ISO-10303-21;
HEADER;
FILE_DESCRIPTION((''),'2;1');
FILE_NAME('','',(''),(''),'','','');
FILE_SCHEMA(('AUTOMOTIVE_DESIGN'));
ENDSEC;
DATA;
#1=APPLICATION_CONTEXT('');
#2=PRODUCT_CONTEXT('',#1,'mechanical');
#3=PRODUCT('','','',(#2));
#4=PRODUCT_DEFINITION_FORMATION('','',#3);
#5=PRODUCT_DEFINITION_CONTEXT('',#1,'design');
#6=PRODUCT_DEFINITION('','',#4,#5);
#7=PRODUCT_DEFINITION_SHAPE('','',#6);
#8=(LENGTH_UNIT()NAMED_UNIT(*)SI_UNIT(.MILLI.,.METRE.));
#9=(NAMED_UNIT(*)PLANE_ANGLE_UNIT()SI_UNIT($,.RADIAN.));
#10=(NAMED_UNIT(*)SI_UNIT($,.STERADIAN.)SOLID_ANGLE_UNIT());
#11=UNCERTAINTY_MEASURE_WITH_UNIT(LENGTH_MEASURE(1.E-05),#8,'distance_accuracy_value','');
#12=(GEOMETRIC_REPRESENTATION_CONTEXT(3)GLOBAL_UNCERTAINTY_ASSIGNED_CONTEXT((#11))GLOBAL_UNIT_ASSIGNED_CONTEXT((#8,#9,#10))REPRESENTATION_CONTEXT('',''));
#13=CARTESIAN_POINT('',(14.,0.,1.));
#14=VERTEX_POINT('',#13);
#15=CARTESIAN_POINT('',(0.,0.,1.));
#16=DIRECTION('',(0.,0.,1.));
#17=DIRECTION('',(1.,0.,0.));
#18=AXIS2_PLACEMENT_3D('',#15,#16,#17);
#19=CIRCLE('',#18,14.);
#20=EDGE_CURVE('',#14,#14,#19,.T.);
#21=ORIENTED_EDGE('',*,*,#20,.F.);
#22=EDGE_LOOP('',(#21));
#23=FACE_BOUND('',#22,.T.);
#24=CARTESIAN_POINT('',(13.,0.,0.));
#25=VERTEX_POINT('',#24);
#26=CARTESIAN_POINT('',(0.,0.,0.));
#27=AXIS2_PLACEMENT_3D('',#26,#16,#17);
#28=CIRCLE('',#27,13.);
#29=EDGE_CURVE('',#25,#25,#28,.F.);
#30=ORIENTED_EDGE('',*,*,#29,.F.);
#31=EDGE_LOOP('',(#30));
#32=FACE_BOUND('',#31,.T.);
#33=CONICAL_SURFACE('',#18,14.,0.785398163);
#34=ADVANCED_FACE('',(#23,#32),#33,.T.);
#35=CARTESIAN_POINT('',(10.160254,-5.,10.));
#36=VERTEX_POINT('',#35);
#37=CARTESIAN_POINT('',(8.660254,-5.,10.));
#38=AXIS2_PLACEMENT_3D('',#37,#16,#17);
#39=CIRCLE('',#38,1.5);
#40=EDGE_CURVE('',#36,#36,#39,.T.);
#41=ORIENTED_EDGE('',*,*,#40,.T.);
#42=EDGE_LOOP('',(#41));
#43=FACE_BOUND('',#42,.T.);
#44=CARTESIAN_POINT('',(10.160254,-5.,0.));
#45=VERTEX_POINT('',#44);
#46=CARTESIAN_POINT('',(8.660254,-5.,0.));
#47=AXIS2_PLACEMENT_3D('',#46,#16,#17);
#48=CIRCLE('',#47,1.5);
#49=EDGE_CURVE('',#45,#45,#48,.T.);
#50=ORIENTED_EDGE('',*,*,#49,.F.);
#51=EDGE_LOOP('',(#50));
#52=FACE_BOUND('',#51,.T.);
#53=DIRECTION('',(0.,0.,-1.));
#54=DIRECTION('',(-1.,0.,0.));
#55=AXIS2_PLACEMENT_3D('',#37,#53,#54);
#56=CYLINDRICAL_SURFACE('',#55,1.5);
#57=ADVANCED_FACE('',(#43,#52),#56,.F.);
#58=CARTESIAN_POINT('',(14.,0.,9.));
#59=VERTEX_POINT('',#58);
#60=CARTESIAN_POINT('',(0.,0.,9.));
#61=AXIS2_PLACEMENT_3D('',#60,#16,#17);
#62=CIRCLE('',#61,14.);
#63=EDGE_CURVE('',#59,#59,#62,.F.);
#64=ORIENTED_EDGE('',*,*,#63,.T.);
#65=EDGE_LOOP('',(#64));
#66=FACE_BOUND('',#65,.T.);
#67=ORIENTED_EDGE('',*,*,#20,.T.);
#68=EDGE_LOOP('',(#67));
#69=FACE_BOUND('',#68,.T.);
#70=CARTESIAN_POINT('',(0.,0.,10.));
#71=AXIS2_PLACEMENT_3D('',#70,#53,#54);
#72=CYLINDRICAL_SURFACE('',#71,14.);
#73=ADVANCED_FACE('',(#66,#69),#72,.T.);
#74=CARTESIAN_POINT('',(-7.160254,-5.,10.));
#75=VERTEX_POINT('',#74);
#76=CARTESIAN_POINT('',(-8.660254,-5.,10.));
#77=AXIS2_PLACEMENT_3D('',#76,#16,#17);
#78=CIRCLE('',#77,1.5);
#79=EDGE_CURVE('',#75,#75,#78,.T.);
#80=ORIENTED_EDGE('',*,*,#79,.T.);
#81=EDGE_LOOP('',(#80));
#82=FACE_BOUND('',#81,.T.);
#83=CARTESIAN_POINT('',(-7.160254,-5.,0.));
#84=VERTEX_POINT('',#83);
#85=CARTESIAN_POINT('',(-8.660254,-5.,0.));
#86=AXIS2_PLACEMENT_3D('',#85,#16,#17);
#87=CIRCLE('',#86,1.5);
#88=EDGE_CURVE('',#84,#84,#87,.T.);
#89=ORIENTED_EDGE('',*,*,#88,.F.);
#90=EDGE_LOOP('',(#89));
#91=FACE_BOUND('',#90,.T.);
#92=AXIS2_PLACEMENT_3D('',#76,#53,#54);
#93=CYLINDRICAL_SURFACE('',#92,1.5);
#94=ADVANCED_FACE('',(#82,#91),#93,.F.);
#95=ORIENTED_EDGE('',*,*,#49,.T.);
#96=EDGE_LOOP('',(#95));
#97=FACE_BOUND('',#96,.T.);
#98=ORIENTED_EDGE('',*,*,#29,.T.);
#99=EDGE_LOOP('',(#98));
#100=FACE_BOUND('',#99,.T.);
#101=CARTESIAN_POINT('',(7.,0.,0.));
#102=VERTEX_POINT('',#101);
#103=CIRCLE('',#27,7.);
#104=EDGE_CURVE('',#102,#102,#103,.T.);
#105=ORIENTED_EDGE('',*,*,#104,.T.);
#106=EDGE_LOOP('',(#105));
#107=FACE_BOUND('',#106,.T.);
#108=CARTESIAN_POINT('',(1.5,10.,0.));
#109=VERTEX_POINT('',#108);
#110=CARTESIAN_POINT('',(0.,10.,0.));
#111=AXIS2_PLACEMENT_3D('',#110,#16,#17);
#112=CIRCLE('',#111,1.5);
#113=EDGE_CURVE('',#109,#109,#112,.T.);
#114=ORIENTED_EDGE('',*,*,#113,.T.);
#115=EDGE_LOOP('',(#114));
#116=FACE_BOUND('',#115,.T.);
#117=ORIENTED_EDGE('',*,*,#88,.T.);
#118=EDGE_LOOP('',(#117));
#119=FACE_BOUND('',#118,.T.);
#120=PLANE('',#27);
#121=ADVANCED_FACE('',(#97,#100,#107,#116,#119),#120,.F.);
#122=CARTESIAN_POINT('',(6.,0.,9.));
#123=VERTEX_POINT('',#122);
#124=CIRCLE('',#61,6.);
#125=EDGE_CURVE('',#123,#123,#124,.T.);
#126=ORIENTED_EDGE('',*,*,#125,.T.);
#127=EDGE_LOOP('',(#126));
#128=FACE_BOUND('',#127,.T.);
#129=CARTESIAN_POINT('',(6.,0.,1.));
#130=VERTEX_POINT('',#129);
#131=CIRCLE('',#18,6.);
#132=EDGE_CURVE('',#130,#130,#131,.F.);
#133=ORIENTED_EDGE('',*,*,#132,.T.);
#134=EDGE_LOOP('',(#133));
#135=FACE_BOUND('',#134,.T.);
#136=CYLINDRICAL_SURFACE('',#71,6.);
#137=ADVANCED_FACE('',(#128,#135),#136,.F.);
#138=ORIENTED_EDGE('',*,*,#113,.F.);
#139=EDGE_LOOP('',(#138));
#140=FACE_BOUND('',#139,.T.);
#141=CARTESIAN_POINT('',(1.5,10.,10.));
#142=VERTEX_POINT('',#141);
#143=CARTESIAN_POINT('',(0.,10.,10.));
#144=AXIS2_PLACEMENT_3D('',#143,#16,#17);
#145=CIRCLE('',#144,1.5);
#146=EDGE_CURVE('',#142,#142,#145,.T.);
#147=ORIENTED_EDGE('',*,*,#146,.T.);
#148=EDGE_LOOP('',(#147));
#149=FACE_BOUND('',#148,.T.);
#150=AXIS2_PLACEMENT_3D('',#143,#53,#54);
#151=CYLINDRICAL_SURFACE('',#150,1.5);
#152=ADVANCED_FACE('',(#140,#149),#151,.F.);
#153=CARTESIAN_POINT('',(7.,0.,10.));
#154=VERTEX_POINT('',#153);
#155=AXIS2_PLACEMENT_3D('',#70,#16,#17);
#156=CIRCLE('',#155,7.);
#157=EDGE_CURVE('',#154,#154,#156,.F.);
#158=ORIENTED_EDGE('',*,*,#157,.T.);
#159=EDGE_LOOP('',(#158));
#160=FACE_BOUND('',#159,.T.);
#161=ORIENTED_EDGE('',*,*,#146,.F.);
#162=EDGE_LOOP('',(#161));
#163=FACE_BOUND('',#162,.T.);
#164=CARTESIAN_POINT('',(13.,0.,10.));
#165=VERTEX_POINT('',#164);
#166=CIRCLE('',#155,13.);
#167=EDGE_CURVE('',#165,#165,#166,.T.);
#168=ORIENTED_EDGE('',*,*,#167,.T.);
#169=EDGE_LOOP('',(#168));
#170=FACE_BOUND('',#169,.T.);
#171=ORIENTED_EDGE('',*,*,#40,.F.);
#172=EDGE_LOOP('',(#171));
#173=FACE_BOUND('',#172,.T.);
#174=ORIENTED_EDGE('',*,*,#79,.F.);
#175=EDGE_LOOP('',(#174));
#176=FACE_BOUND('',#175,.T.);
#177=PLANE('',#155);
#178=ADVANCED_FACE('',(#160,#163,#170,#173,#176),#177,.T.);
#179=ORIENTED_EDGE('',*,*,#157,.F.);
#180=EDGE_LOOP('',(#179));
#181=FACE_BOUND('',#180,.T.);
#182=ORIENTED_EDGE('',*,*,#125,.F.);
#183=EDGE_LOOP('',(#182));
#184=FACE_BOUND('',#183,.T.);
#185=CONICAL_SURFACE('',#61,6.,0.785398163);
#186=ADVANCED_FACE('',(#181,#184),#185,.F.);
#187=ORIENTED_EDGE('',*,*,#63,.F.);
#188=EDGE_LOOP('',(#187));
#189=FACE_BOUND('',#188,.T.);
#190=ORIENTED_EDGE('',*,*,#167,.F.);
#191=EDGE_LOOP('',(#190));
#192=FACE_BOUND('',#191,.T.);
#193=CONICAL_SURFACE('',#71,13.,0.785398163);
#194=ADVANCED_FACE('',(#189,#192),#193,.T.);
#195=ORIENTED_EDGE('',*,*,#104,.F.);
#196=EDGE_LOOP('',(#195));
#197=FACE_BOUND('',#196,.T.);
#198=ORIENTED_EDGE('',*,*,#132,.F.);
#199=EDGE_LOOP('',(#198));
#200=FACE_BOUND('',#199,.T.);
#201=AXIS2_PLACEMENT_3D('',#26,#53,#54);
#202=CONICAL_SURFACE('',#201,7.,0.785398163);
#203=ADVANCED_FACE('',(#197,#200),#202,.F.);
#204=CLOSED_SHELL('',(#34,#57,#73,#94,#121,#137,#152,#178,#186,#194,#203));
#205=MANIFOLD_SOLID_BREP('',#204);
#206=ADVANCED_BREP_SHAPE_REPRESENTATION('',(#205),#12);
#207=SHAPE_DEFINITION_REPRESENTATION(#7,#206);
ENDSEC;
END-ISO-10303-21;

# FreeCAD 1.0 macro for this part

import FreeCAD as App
import Part
import Sketcher

V = App.Vector


def edges_at(feature, points):
    """Names of the edges that pass closest to the given points."""
    edges = feature.Shape.Edges
    near = lambda p: min(range(len(edges)), key=lambda i: edges[i].distToShape(Part.Vertex(*p))[0])
    return sorted({f"Edge{near(p) + 1}" for p in points})

doc = App.newDocument("Part")
params = doc.addObject("Spreadsheet::Sheet", "Params")
for row, (alias, value) in enumerate([
    ("sketch1_diameter", "28 mm"),
    ("sketch1_diameter2", "3 mm"),
    ("sketch1_diameter3", "12 mm"),
    ("pad1_length", "10 mm"),
    ("chamfer_size", "1 mm"),
], start=1):
    params.set(f"A{row}", alias)
    params.set(f"B{row}", "=" + value)
    params.setAlias(f"B{row}", alias)

body = doc.addObject("PartDesign::Body", "Body")

sketch1 = body.newObject("Sketcher::SketchObject", "Sketch")
sketch1.AttachmentSupport = (doc.getObject("XY_Plane"), [""])
sketch1.MapMode = "FlatFace"
sketch1.addGeometry([
    Part.Circle(V(0, 0, 0), V(0, 0, 1), 14),
    Part.Circle(V(-8.7, -5, 0), V(0, 0, 1), 1.5),
    Part.Circle(V(8.7, -5, 0), V(0, 0, 1), 1.5),
    Part.Circle(V(0, 0, 0), V(0, 0, 1), 6),
    Part.Circle(V(0, 10, 0), V(0, 0, 1), 1.5),
], False)
sketch1.addConstraint([
    Sketcher.Constraint("Coincident", 0, 3, -1, 1),
    Sketcher.Constraint("Coincident", 3, 3, -1, 1),
    Sketcher.Constraint("Equal", 1, 2),
    Sketcher.Constraint("Equal", 2, 4),
    Sketcher.Constraint("Symmetric", 1, 3, 2, 3, -2),
    Sketcher.Constraint("PointOnObject", 4, 3, -2),
    Sketcher.Constraint("Diameter", 0, 28.0),
    Sketcher.Constraint("Diameter", 1, 3.0),
    Sketcher.Constraint("Diameter", 3, 12.0),
    Sketcher.Constraint("DistanceY", 1, 3, -1, 1, 5.0),
    Sketcher.Constraint("DistanceY", -1, 1, 4, 3, 10.0),
    Sketcher.Constraint("DistanceX", 1, 3, 2, 3, 17.320508),
])
sketch1.setExpression("Constraints[6]", "Params.sketch1_diameter")
sketch1.setExpression("Constraints[7]", "Params.sketch1_diameter2")
sketch1.setExpression("Constraints[8]", "Params.sketch1_diameter3")
pad1 = body.newObject("PartDesign::Pad", "Pad")
pad1.Profile = sketch1
pad1.setExpression("Length", "Params.pad1_length")
doc.recompute()

chamfer = body.newObject("PartDesign::Chamfer", "Chamfer")
chamfer.Base = (pad1, edges_at(pad1, [
    (-14, 0, 0),
    (-14, 0, 10),
    (-6, 0, 0),
    (-6, 0, 10),
]))
chamfer.setExpression("Size", "Params.chamfer_size")

doc.recompute()
